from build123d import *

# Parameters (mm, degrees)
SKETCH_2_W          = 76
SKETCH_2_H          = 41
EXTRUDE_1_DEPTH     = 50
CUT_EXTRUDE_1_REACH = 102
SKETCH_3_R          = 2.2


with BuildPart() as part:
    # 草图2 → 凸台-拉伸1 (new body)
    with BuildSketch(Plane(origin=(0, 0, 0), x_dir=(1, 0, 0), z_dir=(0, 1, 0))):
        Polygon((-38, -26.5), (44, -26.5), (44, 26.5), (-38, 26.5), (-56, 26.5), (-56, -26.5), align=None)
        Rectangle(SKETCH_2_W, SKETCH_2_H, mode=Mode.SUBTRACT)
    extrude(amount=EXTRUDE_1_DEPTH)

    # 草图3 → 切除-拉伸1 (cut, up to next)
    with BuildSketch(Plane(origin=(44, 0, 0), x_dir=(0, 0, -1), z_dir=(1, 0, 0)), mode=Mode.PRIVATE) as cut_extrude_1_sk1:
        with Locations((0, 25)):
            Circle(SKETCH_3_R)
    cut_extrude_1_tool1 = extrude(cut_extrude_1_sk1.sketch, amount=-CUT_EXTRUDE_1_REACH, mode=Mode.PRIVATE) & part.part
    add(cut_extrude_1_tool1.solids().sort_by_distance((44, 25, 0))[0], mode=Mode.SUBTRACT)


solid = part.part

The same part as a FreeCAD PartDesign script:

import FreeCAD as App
import Part
import Sketcher
from FreeCAD import Vector


def add_polygon(sketch, points):
    """Adds a closed chain of lines whose ends are joined by coincident constraints."""
    first, n = sketch.GeometryCount, len(points)
    for a, b in zip(points, points[1:] + points[:1]):
        sketch.addGeometry(Part.LineSegment(App.Vector(*a, 0), App.Vector(*b, 0)), False)
    for i in range(n):
        sketch.addConstraint(Sketcher.Constraint("Coincident", first + i, 2, first + (i + 1) % n, 1))

doc = App.newDocument("Part")
params = doc.addObject("Spreadsheet::Sheet", "Params")
for row, (alias, value) in enumerate([
    ("sketch1_width", "100 mm"),
    ("sketch1_width2", "76 mm"),
    ("sketch1_height", "53 mm"),
    ("sketch1_height2", "41 mm"),
    ("pad1_length", "50 mm"),
    ("sketch2_diameter", "4.4 mm"),
], start=1):
    params.set(f"A{row}", alias)
    params.set(f"B{row}", "=" + value)
    params.setAlias(f"B{row}", alias)

body = doc.addObject("PartDesign::Body", "Body")

sketch1 = body.newObject("Sketcher::SketchObject", "Sketch")
sketch1.AttachmentSupport = (doc.getObject("XZ_Plane"), [""])
sketch1.MapMode = "FlatFace"
add_polygon(sketch1, [(44, 26.5), (44, -26.5), (-56, -26.5), (-56, 26.5)])
add_polygon(sketch1, [(38, 20.5), (-38, 20.5), (-38, -20.5), (38, -20.5)])
sketch1.addConstraint([
    Sketcher.Constraint("Vertical", 0),
    Sketcher.Constraint("Horizontal", 1),
    Sketcher.Constraint("Vertical", 2),
    Sketcher.Constraint("Horizontal", 3),
    Sketcher.Constraint("Horizontal", 4),
    Sketcher.Constraint("Vertical", 5),
    Sketcher.Constraint("Horizontal", 6),
    Sketcher.Constraint("Vertical", 7),
    Sketcher.Constraint("Symmetric", 4, 2, 6, 2, -1, 1),
    Sketcher.Constraint("DistanceX", 1, 2, 1, 1, 100.0),
    Sketcher.Constraint("DistanceX", 4, 2, 4, 1, 76.0),
    Sketcher.Constraint("DistanceY", 0, 2, 0, 1, 53.0),
    Sketcher.Constraint("DistanceY", 5, 2, 5, 1, 41.0),
    Sketcher.Constraint("DistanceX", -1, 1, 0, 2, 44.0),
    Sketcher.Constraint("DistanceY", 4, 2, 2, 2, 6.0),
])
sketch1.setExpression("Constraints[17]", "Params.sketch1_width")
sketch1.setExpression("Constraints[18]", "Params.sketch1_width2")
sketch1.setExpression("Constraints[19]", "Params.sketch1_height")
sketch1.setExpression("Constraints[20]", "Params.sketch1_height2")
pad1 = body.newObject("PartDesign::Pad", "Pad")
pad1.Profile = sketch1
pad1.setExpression("Length", "Params.pad1_length")
pad1.Reversed = True

sketch2 = body.newObject("Sketcher::SketchObject", "Sketch001")
sketch2.AttachmentSupport = (doc.getObject("YZ_Plane"), [""])
sketch2.MapMode = "FlatFace"
sketch2.AttachmentOffset = App.Placement(Vector(0, 0, 44), App.Rotation())
sketch2.addGeometry(Part.Circle(Vector(25, 0, 0), Vector(0, 0, 1), 2.2), False)
sketch2.addConstraint([
    Sketcher.Constraint("PointOnObject", 0, 3, -1),
    Sketcher.Constraint("Diameter", 0, 4.4),
    Sketcher.Constraint("DistanceX", -1, 1, 0, 3, 25.0),
])
sketch2.setExpression("Constraints[1]", "Params.sketch2_diameter")
pocket1 = body.newObject("PartDesign::Pocket", "Pocket")
pocket1.Profile = sketch2
pocket1.Type = "UpToFirst"

doc.recompute()
